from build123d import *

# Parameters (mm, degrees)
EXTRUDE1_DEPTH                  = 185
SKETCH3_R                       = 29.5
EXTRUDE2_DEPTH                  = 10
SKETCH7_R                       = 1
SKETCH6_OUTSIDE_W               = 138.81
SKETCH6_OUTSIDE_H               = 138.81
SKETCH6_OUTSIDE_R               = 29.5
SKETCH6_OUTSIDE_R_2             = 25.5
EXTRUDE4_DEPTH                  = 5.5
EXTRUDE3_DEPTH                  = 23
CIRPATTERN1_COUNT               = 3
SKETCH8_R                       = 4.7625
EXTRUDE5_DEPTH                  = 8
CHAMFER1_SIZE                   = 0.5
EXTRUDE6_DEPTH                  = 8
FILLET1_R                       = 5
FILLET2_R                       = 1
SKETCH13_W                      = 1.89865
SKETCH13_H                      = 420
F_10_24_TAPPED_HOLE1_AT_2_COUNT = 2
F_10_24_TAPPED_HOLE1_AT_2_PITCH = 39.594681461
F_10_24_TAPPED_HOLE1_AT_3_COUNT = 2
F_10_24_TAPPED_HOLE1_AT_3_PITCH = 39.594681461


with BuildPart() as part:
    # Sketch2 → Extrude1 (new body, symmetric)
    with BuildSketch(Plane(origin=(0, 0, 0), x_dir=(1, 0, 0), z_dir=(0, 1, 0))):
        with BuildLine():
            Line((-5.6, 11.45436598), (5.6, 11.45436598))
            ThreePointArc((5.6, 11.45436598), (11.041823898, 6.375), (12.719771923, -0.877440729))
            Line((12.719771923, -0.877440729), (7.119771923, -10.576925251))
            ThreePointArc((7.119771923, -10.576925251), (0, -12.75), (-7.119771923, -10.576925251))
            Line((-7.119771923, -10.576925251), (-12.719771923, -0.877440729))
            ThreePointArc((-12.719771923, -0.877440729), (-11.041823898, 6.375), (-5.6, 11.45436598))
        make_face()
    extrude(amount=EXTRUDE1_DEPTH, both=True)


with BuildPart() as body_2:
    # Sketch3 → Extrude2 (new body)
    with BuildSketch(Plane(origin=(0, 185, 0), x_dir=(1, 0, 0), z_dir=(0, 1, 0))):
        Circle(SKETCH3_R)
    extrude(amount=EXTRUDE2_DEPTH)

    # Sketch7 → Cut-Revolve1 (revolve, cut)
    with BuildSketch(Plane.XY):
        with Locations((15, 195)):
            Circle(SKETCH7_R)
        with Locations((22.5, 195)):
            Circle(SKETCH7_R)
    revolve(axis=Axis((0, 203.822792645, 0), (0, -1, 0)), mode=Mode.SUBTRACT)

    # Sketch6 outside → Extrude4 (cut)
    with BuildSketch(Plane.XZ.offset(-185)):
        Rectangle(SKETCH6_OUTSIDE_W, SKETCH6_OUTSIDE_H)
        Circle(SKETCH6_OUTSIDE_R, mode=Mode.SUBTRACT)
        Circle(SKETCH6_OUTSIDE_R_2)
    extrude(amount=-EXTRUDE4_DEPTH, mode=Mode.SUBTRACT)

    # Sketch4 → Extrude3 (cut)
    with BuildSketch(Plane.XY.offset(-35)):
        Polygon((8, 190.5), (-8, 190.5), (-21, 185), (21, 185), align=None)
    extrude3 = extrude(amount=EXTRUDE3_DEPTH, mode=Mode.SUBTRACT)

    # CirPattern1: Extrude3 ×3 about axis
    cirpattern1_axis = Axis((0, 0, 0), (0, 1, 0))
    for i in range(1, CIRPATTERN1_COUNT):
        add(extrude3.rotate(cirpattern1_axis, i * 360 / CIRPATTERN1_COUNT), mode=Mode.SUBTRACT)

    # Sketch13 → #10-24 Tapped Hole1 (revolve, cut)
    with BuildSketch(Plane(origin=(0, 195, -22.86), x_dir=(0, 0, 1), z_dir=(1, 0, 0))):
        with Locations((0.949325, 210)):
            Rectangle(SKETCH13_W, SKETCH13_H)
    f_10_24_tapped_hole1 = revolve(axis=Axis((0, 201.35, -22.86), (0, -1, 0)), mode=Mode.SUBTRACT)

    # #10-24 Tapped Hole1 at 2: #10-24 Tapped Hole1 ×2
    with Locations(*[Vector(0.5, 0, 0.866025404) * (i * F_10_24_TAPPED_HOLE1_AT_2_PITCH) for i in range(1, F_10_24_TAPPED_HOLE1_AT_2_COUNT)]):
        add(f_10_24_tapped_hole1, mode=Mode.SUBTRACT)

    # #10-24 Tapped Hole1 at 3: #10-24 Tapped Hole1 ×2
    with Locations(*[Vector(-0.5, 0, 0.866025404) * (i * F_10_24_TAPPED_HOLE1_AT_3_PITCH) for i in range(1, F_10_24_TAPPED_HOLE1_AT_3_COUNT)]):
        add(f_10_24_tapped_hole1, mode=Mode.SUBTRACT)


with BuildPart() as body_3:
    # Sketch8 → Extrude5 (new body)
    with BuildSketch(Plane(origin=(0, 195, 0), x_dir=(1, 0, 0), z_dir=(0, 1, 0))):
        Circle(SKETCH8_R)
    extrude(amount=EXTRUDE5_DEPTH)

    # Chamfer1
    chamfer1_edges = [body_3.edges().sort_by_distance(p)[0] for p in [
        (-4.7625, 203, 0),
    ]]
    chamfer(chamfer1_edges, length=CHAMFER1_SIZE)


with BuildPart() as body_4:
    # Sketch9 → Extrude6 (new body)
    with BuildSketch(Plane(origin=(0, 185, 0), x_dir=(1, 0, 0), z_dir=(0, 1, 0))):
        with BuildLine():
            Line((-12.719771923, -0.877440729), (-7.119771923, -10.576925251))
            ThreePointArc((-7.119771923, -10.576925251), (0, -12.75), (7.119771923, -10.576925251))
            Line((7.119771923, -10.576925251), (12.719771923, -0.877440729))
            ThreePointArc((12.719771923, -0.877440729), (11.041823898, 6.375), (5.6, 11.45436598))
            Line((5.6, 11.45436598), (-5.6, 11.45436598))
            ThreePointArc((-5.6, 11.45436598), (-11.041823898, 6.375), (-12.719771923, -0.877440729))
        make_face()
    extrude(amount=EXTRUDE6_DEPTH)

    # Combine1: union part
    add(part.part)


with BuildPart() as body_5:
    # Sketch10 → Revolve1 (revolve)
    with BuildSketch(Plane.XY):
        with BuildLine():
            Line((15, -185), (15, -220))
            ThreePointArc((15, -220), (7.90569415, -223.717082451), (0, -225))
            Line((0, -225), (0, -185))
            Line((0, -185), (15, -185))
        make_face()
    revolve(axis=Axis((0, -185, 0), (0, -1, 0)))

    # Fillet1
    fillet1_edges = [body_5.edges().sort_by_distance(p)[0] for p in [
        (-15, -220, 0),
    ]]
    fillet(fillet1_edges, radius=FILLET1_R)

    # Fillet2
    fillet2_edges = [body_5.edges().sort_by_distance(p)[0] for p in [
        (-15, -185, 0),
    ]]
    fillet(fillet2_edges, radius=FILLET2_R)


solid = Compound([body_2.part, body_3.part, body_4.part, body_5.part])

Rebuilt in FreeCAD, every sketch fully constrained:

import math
import FreeCAD as App
import Part
import Sketcher
from FreeCAD import Vector
Q = App.Units.Quantity


def edges_at(feature, points):
    """Names of the edges that pass closest to the given points."""
    edges = feature.Shape.Edges
    near = lambda p: min(range(len(edges)), key=lambda i: edges[i].distToShape(Part.Vertex(*p))[0])
    return sorted({f"Edge{near(p) + 1}" for p in points})


def add_polygon(sketch, points):
    """Adds a closed chain of lines whose ends are joined by coincident constraints."""
    first, n = sketch.GeometryCount, len(points)
    for a, b in zip(points, points[1:] + points[:1]):
        sketch.addGeometry(Part.LineSegment(App.Vector(*a, 0), App.Vector(*b, 0)), False)
    for i in range(n):
        sketch.addConstraint(Sketcher.Constraint("Coincident", first + i, 2, first + (i + 1) % n, 1))

doc = App.newDocument("Part")
body = doc.addObject("PartDesign::Body", "Body")

sketch1 = body.newObject("Sketcher::SketchObject", "Sketch")
sketch1.AttachmentSupport = (doc.getObject("XZ_Plane"), [""])
sketch1.MapMode = "FlatFace"
sketch1.addGeometry(Part.LineSegment(Vector(6, -11, 0), Vector(-6, -11, 0)), False)
sketch1.addGeometry(Part.ArcOfCircle(Part.Circle(Vector(0, 0, 0), Vector(0, 0, 1), 13), math.radians(176), math.radians(244)), False)
sketch1.addGeometry(Part.LineSegment(Vector(-13, 1, 0), Vector(-7, 11, 0)), False)
sketch1.addGeometry(Part.ArcOfCircle(Part.Circle(Vector(0, 0, 0), Vector(0, 0, 1), 13), math.radians(56), math.radians(124)), False)
sketch1.addGeometry(Part.LineSegment(Vector(7, 11, 0), Vector(13, 1, 0)), False)
sketch1.addGeometry(Part.ArcOfCircle(Part.Circle(Vector(0, 0, 0), Vector(0, 0, 1), 13), math.radians(-64), math.radians(4)), False)
sketch1.addConstraint(Sketcher.Constraint("Coincident", 0, 2, 1, 2))
sketch1.addConstraint(Sketcher.Constraint("Coincident", 1, 1, 2, 1))
sketch1.addConstraint(Sketcher.Constraint("Coincident", 2, 2, 3, 2))
sketch1.addConstraint(Sketcher.Constraint("Coincident", 3, 1, 4, 1))
sketch1.addConstraint(Sketcher.Constraint("Coincident", 4, 2, 5, 2))
sketch1.addConstraint(Sketcher.Constraint("Coincident", 5, 1, 0, 1))
sketch1.addConstraint(Sketcher.Constraint("Horizontal", 0))
sketch1.addConstraint(Sketcher.Constraint("Coincident", 1, 3, -1, 1))
sketch1.addConstraint(Sketcher.Constraint("Coincident", 3, 3, -1, 1))
sketch1.addConstraint(Sketcher.Constraint("Coincident", 5, 3, -1, 1))
sketch1.addConstraint(Sketcher.Constraint("Equal", 1, 3))
sketch1.addConstraint(Sketcher.Constraint("Equal", 3, 5))
sketch1.addConstraint(Sketcher.Constraint("Horizontal", 2, 2, 3, 1))
sketch1.addConstraint(Sketcher.Constraint("Horizontal", 1, 1, 4, 2))
sketch1.addConstraint(Sketcher.Constraint("Angle", 2, Q("60 deg")))
sketch1.addConstraint(Sketcher.Constraint("Radius", 1, Q("12.75 mm")))
sketch1.addConstraint(Sketcher.Constraint("DistanceX", 0, 2, 0, 1, Q("11.2 mm")))
sketch1.addConstraint(Sketcher.Constraint("Distance", 2, Q("11.2 mm")))
pad1 = body.newObject("PartDesign::Pad", "Pad")
pad1.Profile = sketch1
pad1.Length = 370
pad1.Midplane = True
body2 = doc.addObject("PartDesign::Body", "Body001")

sketch2 = body2.newObject("Sketcher::SketchObject", "Sketch001")
sketch2.AttachmentSupport = (doc.getObject("XZ_Plane001"), [""])
sketch2.MapMode = "FlatFace"
sketch2.AttachmentOffset = App.Placement(Vector(0, 0, -185), App.Rotation())
sketch2.addGeometry(Part.Circle(Vector(0, 0, 0), Vector(0, 0, 1), 30), False)
sketch2.addConstraint(Sketcher.Constraint("Coincident", 0, 3, -1, 1))
sketch2.addConstraint(Sketcher.Constraint("Diameter", 0, Q("59 mm")))
pad2 = body2.newObject("PartDesign::Pad", "Pad001")
pad2.Profile = sketch2
pad2.Length = 10
pad2.Reversed = True

sketch3 = body2.newObject("Sketcher::SketchObject", "Sketch002")
sketch3.AttachmentSupport = (doc.getObject("XY_Plane001"), [""])
sketch3.MapMode = "FlatFace"
sketch3.addGeometry(Part.Circle(Vector(15, 195, 0), Vector(0, 0, 1), 1), False)
sketch3.addGeometry(Part.Circle(Vector(22.5, 195, 0), Vector(0, 0, 1), 1), False)
sketch3.addConstraint(Sketcher.Constraint("Equal", 0, 1))
sketch3.addConstraint(Sketcher.Constraint("Horizontal", 0, 3, 1, 3))
sketch3.addConstraint(Sketcher.Constraint("Diameter", 0, Q("2 mm")))
sketch3.addConstraint(Sketcher.Constraint("DistanceX", -1, 1, 0, 3, Q("15 mm")))
sketch3.addConstraint(Sketcher.Constraint("DistanceY", -1, 1, 0, 3, Q("195 mm")))
sketch3.addConstraint(Sketcher.Constraint("DistanceX", -1, 1, 1, 3, Q("22.5 mm")))
groove = body2.newObject("PartDesign::Groove", "Groove")
groove.Profile = sketch3
groove.ReferenceAxis = (sketch3, ["V_Axis"])
groove.Angle = 360

sketch4 = body2.newObject("Sketcher::SketchObject", "Sketch003")
sketch4.AttachmentSupport = (doc.getObject("XZ_Plane001"), [""])
sketch4.MapMode = "FlatFace"
sketch4.AttachmentOffset = App.Placement(Vector(0, 0, -185), App.Rotation())
add_polygon(sketch4, [(-69, 69), (-69, -69), (69, -69), (69, 69)])
sketch4.addGeometry(Part.Circle(Vector(0, 0, 0), Vector(0, 0, 1), 30), False)
sketch4.addGeometry(Part.Circle(Vector(0, 0, 0), Vector(0, 0, 1), 26), False)
sketch4.addConstraint(Sketcher.Constraint("Vertical", 0))
sketch4.addConstraint(Sketcher.Constraint("Horizontal", 1))
sketch4.addConstraint(Sketcher.Constraint("Vertical", 2))
sketch4.addConstraint(Sketcher.Constraint("Horizontal", 3))
sketch4.addConstraint(Sketcher.Constraint("Coincident", 4, 3, -1, 1))
sketch4.addConstraint(Sketcher.Constraint("Coincident", 5, 3, -1, 1))
sketch4.addConstraint(Sketcher.Constraint("Symmetric", 0, 2, 2, 2, -1, 1))
sketch4.addConstraint(Sketcher.Constraint("Equal", 3, 0))
sketch4.addConstraint(Sketcher.Constraint("Diameter", 4, Q("59 mm")))
sketch4.addConstraint(Sketcher.Constraint("Diameter", 5, Q("51 mm")))
sketch4.addConstraint(Sketcher.Constraint("DistanceX", 1, 1, 1, 2, Q("138.81 mm")))
pocket1 = body2.newObject("PartDesign::Pocket", "Pocket")
pocket1.Profile = sketch4
pocket1.Length = 5.5

sketch5 = body2.newObject("Sketcher::SketchObject", "Sketch004")
sketch5.AttachmentSupport = (doc.getObject("XY_Plane001"), [""])
sketch5.MapMode = "FlatFace"
sketch5.AttachmentOffset = App.Placement(Vector(0, 0, -35), App.Rotation())
add_polygon(sketch5, [(8, 190), (-8, 190), (-21, 185), (21, 185)])
sketch5.addConstraint(Sketcher.Constraint("Horizontal", 0))
sketch5.addConstraint(Sketcher.Constraint("Horizontal", 2))
sketch5.addConstraint(Sketcher.Constraint("Equal", 1, 3))
sketch5.addConstraint(Sketcher.Constraint("DistanceX", 0, 2, 0, 1, Q("16 mm")))
sketch5.addConstraint(Sketcher.Constraint("DistanceX", 2, 1, 2, 2, Q("42 mm")))
sketch5.addConstraint(Sketcher.Constraint("DistanceX", 0, 2, -1, 1, Q("8 mm")))
sketch5.addConstraint(Sketcher.Constraint("DistanceY", -1, 1, 1, 2, Q("185 mm")))
sketch5.addConstraint(Sketcher.Constraint("DistanceY", -1, 1, 0, 2, Q("190.5 mm")))
pocket2 = body2.newObject("PartDesign::Pocket", "Pocket001")
pocket2.Profile = sketch5
pocket2.Length = 23
pocket2.Reversed = True
doc.recompute()

polarpattern = body2.newObject("PartDesign::PolarPattern", "PolarPattern")
polarpattern.Originals = [pocket2]
polarpattern.Axis = (doc.getObject("Y_Axis001"), [""])
polarpattern.Angle = 360
polarpattern.Occurrences = 3
body2.Tip = polarpattern

sketch6 = body2.newObject("Sketcher::SketchObject", "Sketch005")
sketch6.AttachmentSupport = (doc.getObject("YZ_Plane001"), [""])
sketch6.MapMode = "FlatFace"
add_polygon(sketch6, [(-225, -22.9), (195, -22.9), (195, -21), (-225, -21)])
sketch6.addGeometry(Part.LineSegment(Vector(195, -22.9, 0), Vector(-225, -22.9, 0)), True)
sketch6.addConstraint(Sketcher.Constraint("Horizontal", 0))
sketch6.addConstraint(Sketcher.Constraint("Vertical", 1))
sketch6.addConstraint(Sketcher.Constraint("Horizontal", 2))
sketch6.addConstraint(Sketcher.Constraint("Vertical", 3))
sketch6.addConstraint(Sketcher.Constraint("Horizontal", 4))
sketch6.addConstraint(Sketcher.Constraint("Coincident", 4, 1, 0, 2))
sketch6.addConstraint(Sketcher.Constraint("Vertical", 2, 2, 4, 2))
sketch6.addConstraint(Sketcher.Constraint("DistanceX", 0, 1, 0, 2, Q("420 mm")))
sketch6.addConstraint(Sketcher.Constraint("DistanceX", -1, 1, 0, 2, Q("195 mm")))
sketch6.addConstraint(Sketcher.Constraint("DistanceY", 0, 2, -1, 1, Q("22.86 mm")))
sketch6.addConstraint(Sketcher.Constraint("DistanceY", 1, 1, 1, 2, Q("1.89865 mm")))
groove2 = body2.newObject("PartDesign::Groove", "Groove001")
groove2.Profile = sketch6
groove2.ReferenceAxis = (sketch6, ["Axis0"])
groove2.Angle = 360
doc.recompute()

datumline = body2.newObject("PartDesign::Line", "DatumLine")
datumline.Placement = App.Placement(Vector(0, 0, 0), App.Rotation(Vector(0, 0, 1), Vector(0.5, 0, 0.866025404)))
linearpattern = body2.newObject("PartDesign::LinearPattern", "LinearPattern")
linearpattern.Originals = [groove2]
linearpattern.Direction = (datumline, [""])
linearpattern.Mode = "offset"
linearpattern.Offset = 39.594681
linearpattern.Occurrences = 2
body2.Tip = linearpattern
doc.recompute()

datumline2 = body2.newObject("PartDesign::Line", "DatumLine001")
datumline2.Placement = App.Placement(Vector(0, 0, 0), App.Rotation(Vector(0, 0, 1), Vector(-0.5, 0, 0.866025404)))
linearpattern2 = body2.newObject("PartDesign::LinearPattern", "LinearPattern001")
linearpattern2.Originals = [groove2]
linearpattern2.Direction = (datumline2, [""])
linearpattern2.Mode = "offset"
linearpattern2.Offset = 39.594681
linearpattern2.Occurrences = 2
body2.Tip = linearpattern2
body3 = doc.addObject("PartDesign::Body", "Body002")

sketch7 = body3.newObject("Sketcher::SketchObject", "Sketch006")
sketch7.AttachmentSupport = (doc.getObject("XZ_Plane002"), [""])
sketch7.MapMode = "FlatFace"
sketch7.AttachmentOffset = App.Placement(Vector(0, 0, -195), App.Rotation())
sketch7.addGeometry(Part.Circle(Vector(0, 0, 0), Vector(0, 0, 1), 4.8), False)
sketch7.addConstraint(Sketcher.Constraint("Coincident", 0, 3, -1, 1))
sketch7.addConstraint(Sketcher.Constraint("Diameter", 0, Q("9.525 mm")))
pad3 = body3.newObject("PartDesign::Pad", "Pad002")
pad3.Profile = sketch7
pad3.Length = 8
pad3.Reversed = True
doc.recompute()

chamfer = body3.newObject("PartDesign::Chamfer", "Chamfer")
chamfer.Base = (pad3, edges_at(pad3, [(-4.763, 203, 0)]))
chamfer.Size = 0.5
body4 = doc.addObject("PartDesign::Body", "Body003")

sketch8 = body4.newObject("Sketcher::SketchObject", "Sketch007")
sketch8.AttachmentSupport = (doc.getObject("XZ_Plane003"), [""])
sketch8.MapMode = "FlatFace"
sketch8.AttachmentOffset = App.Placement(Vector(0, 0, -185), App.Rotation())
sketch8.addGeometry(Part.LineSegment(Vector(-13, 1, 0), Vector(-7, 11, 0)), False)
sketch8.addGeometry(Part.ArcOfCircle(Part.Circle(Vector(0, 0, 0), Vector(0, 0, 1), 13), math.radians(56), math.radians(124)), False)
sketch8.addGeometry(Part.LineSegment(Vector(7, 11, 0), Vector(13, 1, 0)), False)
sketch8.addGeometry(Part.ArcOfCircle(Part.Circle(Vector(0, 0, 0), Vector(0, 0, 1), 13), math.radians(-64), math.radians(4)), False)
sketch8.addGeometry(Part.LineSegment(Vector(6, -11, 0), Vector(-6, -11, 0)), False)
sketch8.addGeometry(Part.ArcOfCircle(Part.Circle(Vector(0, 0, 0), Vector(0, 0, 1), 13), math.radians(176), math.radians(244)), False)
sketch8.addConstraint(Sketcher.Constraint("Coincident", 0, 2, 1, 2))
sketch8.addConstraint(Sketcher.Constraint("Coincident", 1, 1, 2, 1))
sketch8.addConstraint(Sketcher.Constraint("Coincident", 2, 2, 3, 2))
sketch8.addConstraint(Sketcher.Constraint("Coincident", 3, 1, 4, 1))
sketch8.addConstraint(Sketcher.Constraint("Coincident", 4, 2, 5, 2))
sketch8.addConstraint(Sketcher.Constraint("Coincident", 5, 1, 0, 1))
sketch8.addConstraint(Sketcher.Constraint("Horizontal", 4))
sketch8.addConstraint(Sketcher.Constraint("Coincident", 1, 3, -1, 1))
sketch8.addConstraint(Sketcher.Constraint("Coincident", 3, 3, -1, 1))
sketch8.addConstraint(Sketcher.Constraint("Coincident", 5, 3, -1, 1))
sketch8.addConstraint(Sketcher.Constraint("Equal", 1, 3))
sketch8.addConstraint(Sketcher.Constraint("Equal", 3, 5))
sketch8.addConstraint(Sketcher.Constraint("Horizontal", 0, 2, 1, 1))
sketch8.addConstraint(Sketcher.Constraint("Horizontal", 2, 2, 5, 1))
sketch8.addConstraint(Sketcher.Constraint("Angle", 0, Q("60 deg")))
sketch8.addConstraint(Sketcher.Constraint("Radius", 1, Q("12.75 mm")))
sketch8.addConstraint(Sketcher.Constraint("DistanceX", 4, 2, 4, 1, Q("11.2 mm")))
sketch8.addConstraint(Sketcher.Constraint("Distance", 0, Q("11.2 mm")))
pad4 = body4.newObject("PartDesign::Pad", "Pad003")
pad4.Profile = sketch8
pad4.Length = 8
pad4.Reversed = True
doc.recompute()

boolean = body4.newObject("PartDesign::Boolean", "Boolean")
boolean.Type = "Fuse"
boolean.addObjects([body])
body5 = doc.addObject("PartDesign::Body", "Body004")

sketch9 = body5.newObject("Sketcher::SketchObject", "Sketch008")
sketch9.AttachmentSupport = (doc.getObject("XY_Plane004"), [""])
sketch9.MapMode = "FlatFace"
sketch9.addGeometry(Part.LineSegment(Vector(15, -220, 0), Vector(15, -185, 0)), False)
sketch9.addGeometry(Part.LineSegment(Vector(15, -185, 0), Vector(0, -185, 0)), False)
sketch9.addGeometry(Part.LineSegment(Vector(0, -185, 0), Vector(0, -225, 0)), False)
sketch9.addGeometry(Part.ArcOfCircle(Part.Circle(Vector(0, -200, 0), Vector(0, 0, 1), 25), math.radians(-90), math.radians(-53)), False)
sketch9.addConstraint(Sketcher.Constraint("Coincident", 0, 2, 1, 1))
sketch9.addConstraint(Sketcher.Constraint("Coincident", 1, 2, 2, 1))
sketch9.addConstraint(Sketcher.Constraint("Coincident", 2, 2, 3, 1))
sketch9.addConstraint(Sketcher.Constraint("Coincident", 3, 2, 0, 1))
sketch9.addConstraint(Sketcher.Constraint("Vertical", 0))
sketch9.addConstraint(Sketcher.Constraint("Horizontal", 1))
sketch9.addConstraint(Sketcher.Constraint("Vertical", 2))
sketch9.addConstraint(Sketcher.Constraint("PointOnObject", 3, 3, -2))
sketch9.addConstraint(Sketcher.Constraint("PointOnObject", 1, 2, -2))
sketch9.addConstraint(Sketcher.Constraint("Radius", 3, Q("25 mm")))
sketch9.addConstraint(Sketcher.Constraint("DistanceX", 1, 2, 1, 1, Q("15 mm")))
sketch9.addConstraint(Sketcher.Constraint("DistanceY", 0, 1, 0, 2, Q("35 mm")))
sketch9.addConstraint(Sketcher.Constraint("DistanceY", 3, 3, -1, 1, Q("200 mm")))
revolution = body5.newObject("PartDesign::Revolution", "Revolution")
revolution.Profile = sketch9
revolution.ReferenceAxis = (sketch9, ["V_Axis"])
revolution.Angle = 360
doc.recompute()

fillet = body5.newObject("PartDesign::Fillet", "Fillet")
fillet.Base = (revolution, edges_at(revolution, [(-15, -220, 0)]))
fillet.Radius = 5
doc.recompute()

fillet2 = body5.newObject("PartDesign::Fillet", "Fillet001")
fillet2.Base = (fillet, edges_at(fillet, [(-15, -185, 0)]))
fillet2.Radius = 1

doc.recompute()
